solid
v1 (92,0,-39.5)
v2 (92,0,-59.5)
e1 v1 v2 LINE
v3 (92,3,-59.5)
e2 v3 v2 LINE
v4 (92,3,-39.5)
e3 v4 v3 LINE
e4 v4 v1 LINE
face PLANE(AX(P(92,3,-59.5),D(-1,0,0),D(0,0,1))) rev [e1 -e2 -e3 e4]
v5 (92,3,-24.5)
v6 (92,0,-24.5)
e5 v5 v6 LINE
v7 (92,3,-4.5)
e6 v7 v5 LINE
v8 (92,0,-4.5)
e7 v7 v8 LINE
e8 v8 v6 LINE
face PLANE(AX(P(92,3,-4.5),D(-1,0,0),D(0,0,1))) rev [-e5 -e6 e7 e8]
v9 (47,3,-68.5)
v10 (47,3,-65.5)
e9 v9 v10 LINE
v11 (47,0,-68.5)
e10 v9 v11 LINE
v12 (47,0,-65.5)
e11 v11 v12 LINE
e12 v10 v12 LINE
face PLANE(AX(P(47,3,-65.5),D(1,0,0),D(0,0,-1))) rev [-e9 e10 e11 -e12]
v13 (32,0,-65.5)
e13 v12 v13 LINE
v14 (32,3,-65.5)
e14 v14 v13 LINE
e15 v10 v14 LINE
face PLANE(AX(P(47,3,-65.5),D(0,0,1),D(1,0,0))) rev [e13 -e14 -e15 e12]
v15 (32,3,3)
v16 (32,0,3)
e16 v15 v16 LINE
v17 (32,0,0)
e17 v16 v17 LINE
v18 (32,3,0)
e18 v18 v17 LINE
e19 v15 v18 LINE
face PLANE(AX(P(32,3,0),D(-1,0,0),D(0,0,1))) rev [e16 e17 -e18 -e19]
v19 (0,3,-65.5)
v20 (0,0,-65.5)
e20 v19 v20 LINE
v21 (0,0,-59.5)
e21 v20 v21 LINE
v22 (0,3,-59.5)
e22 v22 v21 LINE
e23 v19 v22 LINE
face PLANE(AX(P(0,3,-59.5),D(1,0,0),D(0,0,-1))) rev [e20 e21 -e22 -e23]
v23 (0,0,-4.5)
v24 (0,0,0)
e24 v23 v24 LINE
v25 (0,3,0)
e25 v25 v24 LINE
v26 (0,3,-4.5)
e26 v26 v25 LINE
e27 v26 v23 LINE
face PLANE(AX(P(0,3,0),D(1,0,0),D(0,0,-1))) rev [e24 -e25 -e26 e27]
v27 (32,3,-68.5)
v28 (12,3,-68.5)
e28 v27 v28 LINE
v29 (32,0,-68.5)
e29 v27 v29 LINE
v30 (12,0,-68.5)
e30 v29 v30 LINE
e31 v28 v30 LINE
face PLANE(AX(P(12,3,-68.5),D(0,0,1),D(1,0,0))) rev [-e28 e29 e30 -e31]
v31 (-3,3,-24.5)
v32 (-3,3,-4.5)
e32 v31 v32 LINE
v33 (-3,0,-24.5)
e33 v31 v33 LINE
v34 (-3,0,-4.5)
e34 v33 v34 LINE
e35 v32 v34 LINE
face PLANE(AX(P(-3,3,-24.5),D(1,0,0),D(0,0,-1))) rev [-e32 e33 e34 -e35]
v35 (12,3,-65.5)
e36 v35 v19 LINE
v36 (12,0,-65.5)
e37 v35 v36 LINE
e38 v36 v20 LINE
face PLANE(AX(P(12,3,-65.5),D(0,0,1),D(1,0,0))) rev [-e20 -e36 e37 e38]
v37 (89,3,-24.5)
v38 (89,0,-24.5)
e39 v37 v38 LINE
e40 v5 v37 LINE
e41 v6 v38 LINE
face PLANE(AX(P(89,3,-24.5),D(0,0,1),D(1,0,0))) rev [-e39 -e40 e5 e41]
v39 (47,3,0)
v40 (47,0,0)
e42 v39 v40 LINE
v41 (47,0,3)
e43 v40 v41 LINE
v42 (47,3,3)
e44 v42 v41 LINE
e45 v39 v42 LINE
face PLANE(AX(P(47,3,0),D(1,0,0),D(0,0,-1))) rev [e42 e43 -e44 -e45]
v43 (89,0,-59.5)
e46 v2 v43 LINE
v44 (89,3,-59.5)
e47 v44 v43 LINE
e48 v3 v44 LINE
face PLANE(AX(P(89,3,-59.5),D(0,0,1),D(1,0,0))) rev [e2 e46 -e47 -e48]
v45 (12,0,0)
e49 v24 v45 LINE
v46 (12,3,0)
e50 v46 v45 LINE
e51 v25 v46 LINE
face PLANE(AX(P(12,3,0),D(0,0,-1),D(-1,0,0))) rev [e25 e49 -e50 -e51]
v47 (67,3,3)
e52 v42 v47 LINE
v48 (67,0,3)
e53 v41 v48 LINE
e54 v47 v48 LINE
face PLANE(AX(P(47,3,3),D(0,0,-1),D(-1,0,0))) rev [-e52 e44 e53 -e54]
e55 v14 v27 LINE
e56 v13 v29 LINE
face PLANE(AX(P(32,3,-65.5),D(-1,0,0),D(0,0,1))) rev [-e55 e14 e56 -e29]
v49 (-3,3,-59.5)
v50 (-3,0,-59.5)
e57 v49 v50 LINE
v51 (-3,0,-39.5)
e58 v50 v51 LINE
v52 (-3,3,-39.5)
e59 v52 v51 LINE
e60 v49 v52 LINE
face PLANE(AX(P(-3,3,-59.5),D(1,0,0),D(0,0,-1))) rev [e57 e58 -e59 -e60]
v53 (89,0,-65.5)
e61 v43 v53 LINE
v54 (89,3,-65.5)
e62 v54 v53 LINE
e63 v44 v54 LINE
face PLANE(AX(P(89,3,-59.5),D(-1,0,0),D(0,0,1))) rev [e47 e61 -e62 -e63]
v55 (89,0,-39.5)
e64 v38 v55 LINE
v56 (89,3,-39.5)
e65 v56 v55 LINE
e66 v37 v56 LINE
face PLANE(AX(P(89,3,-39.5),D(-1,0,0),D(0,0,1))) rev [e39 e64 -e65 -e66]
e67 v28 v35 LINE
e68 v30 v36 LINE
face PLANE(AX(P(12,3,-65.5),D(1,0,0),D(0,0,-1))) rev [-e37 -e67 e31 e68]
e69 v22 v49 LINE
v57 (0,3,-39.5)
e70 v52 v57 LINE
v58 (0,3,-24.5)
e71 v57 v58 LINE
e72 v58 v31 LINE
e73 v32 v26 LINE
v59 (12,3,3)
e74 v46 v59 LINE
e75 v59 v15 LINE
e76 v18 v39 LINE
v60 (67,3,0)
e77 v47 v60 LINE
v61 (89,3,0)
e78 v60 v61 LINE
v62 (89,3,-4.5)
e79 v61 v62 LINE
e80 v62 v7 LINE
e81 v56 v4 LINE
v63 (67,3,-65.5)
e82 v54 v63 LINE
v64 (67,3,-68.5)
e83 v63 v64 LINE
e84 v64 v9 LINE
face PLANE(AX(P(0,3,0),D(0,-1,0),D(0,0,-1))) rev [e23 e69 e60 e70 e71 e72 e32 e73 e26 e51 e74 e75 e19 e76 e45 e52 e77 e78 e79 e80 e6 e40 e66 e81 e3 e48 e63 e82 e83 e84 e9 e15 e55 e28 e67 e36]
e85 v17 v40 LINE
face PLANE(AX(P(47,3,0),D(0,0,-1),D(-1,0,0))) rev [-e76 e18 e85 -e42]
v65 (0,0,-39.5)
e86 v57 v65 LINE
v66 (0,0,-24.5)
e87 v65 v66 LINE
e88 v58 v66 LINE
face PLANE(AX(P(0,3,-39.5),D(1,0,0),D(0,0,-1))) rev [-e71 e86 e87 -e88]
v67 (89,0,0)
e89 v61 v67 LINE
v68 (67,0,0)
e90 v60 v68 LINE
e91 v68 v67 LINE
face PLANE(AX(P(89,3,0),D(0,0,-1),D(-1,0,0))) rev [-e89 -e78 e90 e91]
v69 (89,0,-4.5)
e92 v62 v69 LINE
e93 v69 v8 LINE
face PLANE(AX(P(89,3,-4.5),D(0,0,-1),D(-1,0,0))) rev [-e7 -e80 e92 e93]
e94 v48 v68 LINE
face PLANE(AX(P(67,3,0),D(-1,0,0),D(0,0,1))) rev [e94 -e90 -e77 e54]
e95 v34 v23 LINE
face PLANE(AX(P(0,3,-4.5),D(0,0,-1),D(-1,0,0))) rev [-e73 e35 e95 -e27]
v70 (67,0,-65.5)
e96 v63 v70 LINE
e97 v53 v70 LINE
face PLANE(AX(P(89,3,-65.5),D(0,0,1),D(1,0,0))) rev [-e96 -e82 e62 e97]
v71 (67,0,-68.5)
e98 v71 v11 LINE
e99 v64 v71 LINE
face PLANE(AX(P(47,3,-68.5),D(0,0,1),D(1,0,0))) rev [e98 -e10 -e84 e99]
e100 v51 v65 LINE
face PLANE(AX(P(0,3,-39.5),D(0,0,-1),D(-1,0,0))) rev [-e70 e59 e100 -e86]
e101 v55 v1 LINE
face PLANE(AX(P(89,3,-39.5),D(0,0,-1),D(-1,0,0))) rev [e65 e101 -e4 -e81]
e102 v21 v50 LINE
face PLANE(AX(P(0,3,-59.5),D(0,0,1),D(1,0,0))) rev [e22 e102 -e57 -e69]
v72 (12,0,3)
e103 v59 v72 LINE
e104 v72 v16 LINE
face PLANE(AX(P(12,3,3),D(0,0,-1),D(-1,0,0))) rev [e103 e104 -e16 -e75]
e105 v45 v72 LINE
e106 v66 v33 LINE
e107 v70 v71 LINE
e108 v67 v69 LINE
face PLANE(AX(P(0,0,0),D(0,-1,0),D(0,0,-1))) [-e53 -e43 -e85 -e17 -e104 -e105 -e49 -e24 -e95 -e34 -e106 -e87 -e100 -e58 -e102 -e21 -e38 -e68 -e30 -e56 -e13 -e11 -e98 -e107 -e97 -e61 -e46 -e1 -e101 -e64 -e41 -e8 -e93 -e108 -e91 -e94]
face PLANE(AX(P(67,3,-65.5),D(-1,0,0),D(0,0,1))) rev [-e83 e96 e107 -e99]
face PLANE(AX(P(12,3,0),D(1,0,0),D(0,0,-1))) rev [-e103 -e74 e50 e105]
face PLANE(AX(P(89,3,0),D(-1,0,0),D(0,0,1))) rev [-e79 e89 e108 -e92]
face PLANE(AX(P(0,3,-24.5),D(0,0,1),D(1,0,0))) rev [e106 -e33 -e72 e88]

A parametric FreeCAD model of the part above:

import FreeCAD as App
import Part
import Sketcher

V = App.Vector


def add_polygon(sketch, points):
    """Adds a closed chain of lines whose ends are joined by coincident constraints."""
    first, n = sketch.GeometryCount, len(points)
    for a, b in zip(points, points[1:] + points[:1]):
        sketch.addGeometry(Part.LineSegment(App.Vector(*a, 0), App.Vector(*b, 0)), False)
    for i in range(n):
        sketch.addConstraint(Sketcher.Constraint("Coincident", first + i, 2, first + (i + 1) % n, 1))

doc = App.newDocument("Part")
body = doc.addObject("PartDesign::Body", "Body")

sketch1 = body.newObject("Sketcher::SketchObject", "Sketch")
sketch1.AttachmentSupport = (doc.getObject("XZ_Plane"), [""])
sketch1.MapMode = "FlatFace"
add_polygon(sketch1, [(12, -65.5), (0, -65.5), (0, -59.5), (-3, -59.5), (-3, -39.5), (0, -39.5), (0, -24.5), (-3, -24.5), (-3, -4.5), (0, -4.5), (0, 0), (12, 0), (12, 3), (32, 3), (32, 0), (47, 0), (47, 3), (67, 3), (67, 0), (89, 0), (89, -4.5), (92, -4.5), (92, -24.5), (89, -24.5), (89, -39.5), (92, -39.5), (92, -59.5), (89, -59.5), (89, -65.5), (67, -65.5), (67, -68.5), (47, -68.5), (47, -65.5), (32, -65.5), (32, -68.5), (12, -68.5)])
sketch1.addConstraint([
    Sketcher.Constraint("Horizontal", 0),
    Sketcher.Constraint("Vertical", 1),
    Sketcher.Constraint("Horizontal", 2),
    Sketcher.Constraint("Vertical", 3),
    Sketcher.Constraint("Horizontal", 4),
    Sketcher.Constraint("Vertical", 5),
    Sketcher.Constraint("Horizontal", 6),
    Sketcher.Constraint("Vertical", 7),
    Sketcher.Constraint("Horizontal", 8),
    Sketcher.Constraint("Vertical", 9),
    Sketcher.Constraint("Horizontal", 10),
    Sketcher.Constraint("Vertical", 11),
    Sketcher.Constraint("Horizontal", 12),
    Sketcher.Constraint("Vertical", 13),
    Sketcher.Constraint("Horizontal", 14),
    Sketcher.Constraint("Vertical", 15),
    Sketcher.Constraint("Horizontal", 16),
    Sketcher.Constraint("Vertical", 17),
    Sketcher.Constraint("Horizontal", 18),
    Sketcher.Constraint("Vertical", 19),
    Sketcher.Constraint("Horizontal", 20),
    Sketcher.Constraint("Vertical", 21),
    Sketcher.Constraint("Horizontal", 22),
    Sketcher.Constraint("Vertical", 23),
    Sketcher.Constraint("Horizontal", 24),
    Sketcher.Constraint("Vertical", 25),
    Sketcher.Constraint("Horizontal", 26),
    Sketcher.Constraint("Vertical", 27),
    Sketcher.Constraint("Horizontal", 28),
    Sketcher.Constraint("Vertical", 29),
    Sketcher.Constraint("Horizontal", 30),
    Sketcher.Constraint("Vertical", 31),
    Sketcher.Constraint("Horizontal", 32),
    Sketcher.Constraint("Vertical", 33),
    Sketcher.Constraint("Horizontal", 34),
    Sketcher.Constraint("Vertical", 35),
    Sketcher.Constraint("Coincident", 9, 2, -1, 1),
    Sketcher.Constraint("PointOnObject", 0, 2, -2),
    Sketcher.Constraint("PointOnObject", 4, 2, -2),
    Sketcher.Constraint("PointOnObject", 13, 2, -1),
    Sketcher.Constraint("PointOnObject", 17, 2, -1),
    Sketcher.Constraint("Horizontal", 12, 2, 15, 2),
    Sketcher.Constraint("Horizontal", 8, 2, 19, 2),
    Sketcher.Constraint("Horizontal", 6, 2, 21, 2),
    Sketcher.Constraint("Horizontal", 4, 2, 23, 2),
    Sketcher.Constraint("Horizontal", 2, 2, 25, 2),
    Sketcher.Constraint("Horizontal", 0, 2, 27, 2),
    Sketcher.Constraint("Horizontal", 28, 2, 31, 2),
    Sketcher.Constraint("Horizontal", 30, 2, 33, 2),
    Sketcher.Constraint("Vertical", 3, 2, 6, 2),
    Sketcher.Constraint("Vertical", 19, 2, 22, 2),
    Sketcher.Constraint("Vertical", 21, 2, 24, 2),
    Sketcher.Constraint("Vertical", 23, 2, 26, 2),
    Sketcher.Constraint("Vertical", 17, 2, 28, 2),
    Sketcher.Constraint("Vertical", 15, 2, 30, 2),
    Sketcher.Constraint("Vertical", 13, 2, 32, 2),
    Sketcher.Constraint("Vertical", 11, 2, 34, 2),
    Sketcher.Constraint("Equal", 12, 16),
    Sketcher.Constraint("Equal", 8, 20),
    Sketcher.Constraint("Equal", 34, 3),
    Sketcher.Constraint("Equal", 32, 5),
    Sketcher.Constraint("Equal", 3, 7),
    Sketcher.Constraint("Equal", 26, 11),
    Sketcher.Constraint("Equal", 17, 29),
    Sketcher.Constraint("DistanceX", 0, 2, 0, 1, 12.0),
    Sketcher.Constraint("DistanceX", 2, 2, 2, 1, 3.0),
    Sketcher.Constraint("DistanceX", 12, 1, 12, 2, 20.0),
    Sketcher.Constraint("DistanceX", 14, 1, 14, 2, 15.0),
    Sketcher.Constraint("DistanceX", 18, 1, 18, 2, 22.0),
    Sketcher.Constraint("DistanceY", 1, 1, 1, 2, 6.0),
    Sketcher.Constraint("DistanceY", 9, 1, 9, 2, 4.5),
])
pad1 = body.newObject("PartDesign::Pad", "Pad")
pad1.Profile = sketch1
pad1.Length = 3
pad1.Reversed = True

doc.recompute()
